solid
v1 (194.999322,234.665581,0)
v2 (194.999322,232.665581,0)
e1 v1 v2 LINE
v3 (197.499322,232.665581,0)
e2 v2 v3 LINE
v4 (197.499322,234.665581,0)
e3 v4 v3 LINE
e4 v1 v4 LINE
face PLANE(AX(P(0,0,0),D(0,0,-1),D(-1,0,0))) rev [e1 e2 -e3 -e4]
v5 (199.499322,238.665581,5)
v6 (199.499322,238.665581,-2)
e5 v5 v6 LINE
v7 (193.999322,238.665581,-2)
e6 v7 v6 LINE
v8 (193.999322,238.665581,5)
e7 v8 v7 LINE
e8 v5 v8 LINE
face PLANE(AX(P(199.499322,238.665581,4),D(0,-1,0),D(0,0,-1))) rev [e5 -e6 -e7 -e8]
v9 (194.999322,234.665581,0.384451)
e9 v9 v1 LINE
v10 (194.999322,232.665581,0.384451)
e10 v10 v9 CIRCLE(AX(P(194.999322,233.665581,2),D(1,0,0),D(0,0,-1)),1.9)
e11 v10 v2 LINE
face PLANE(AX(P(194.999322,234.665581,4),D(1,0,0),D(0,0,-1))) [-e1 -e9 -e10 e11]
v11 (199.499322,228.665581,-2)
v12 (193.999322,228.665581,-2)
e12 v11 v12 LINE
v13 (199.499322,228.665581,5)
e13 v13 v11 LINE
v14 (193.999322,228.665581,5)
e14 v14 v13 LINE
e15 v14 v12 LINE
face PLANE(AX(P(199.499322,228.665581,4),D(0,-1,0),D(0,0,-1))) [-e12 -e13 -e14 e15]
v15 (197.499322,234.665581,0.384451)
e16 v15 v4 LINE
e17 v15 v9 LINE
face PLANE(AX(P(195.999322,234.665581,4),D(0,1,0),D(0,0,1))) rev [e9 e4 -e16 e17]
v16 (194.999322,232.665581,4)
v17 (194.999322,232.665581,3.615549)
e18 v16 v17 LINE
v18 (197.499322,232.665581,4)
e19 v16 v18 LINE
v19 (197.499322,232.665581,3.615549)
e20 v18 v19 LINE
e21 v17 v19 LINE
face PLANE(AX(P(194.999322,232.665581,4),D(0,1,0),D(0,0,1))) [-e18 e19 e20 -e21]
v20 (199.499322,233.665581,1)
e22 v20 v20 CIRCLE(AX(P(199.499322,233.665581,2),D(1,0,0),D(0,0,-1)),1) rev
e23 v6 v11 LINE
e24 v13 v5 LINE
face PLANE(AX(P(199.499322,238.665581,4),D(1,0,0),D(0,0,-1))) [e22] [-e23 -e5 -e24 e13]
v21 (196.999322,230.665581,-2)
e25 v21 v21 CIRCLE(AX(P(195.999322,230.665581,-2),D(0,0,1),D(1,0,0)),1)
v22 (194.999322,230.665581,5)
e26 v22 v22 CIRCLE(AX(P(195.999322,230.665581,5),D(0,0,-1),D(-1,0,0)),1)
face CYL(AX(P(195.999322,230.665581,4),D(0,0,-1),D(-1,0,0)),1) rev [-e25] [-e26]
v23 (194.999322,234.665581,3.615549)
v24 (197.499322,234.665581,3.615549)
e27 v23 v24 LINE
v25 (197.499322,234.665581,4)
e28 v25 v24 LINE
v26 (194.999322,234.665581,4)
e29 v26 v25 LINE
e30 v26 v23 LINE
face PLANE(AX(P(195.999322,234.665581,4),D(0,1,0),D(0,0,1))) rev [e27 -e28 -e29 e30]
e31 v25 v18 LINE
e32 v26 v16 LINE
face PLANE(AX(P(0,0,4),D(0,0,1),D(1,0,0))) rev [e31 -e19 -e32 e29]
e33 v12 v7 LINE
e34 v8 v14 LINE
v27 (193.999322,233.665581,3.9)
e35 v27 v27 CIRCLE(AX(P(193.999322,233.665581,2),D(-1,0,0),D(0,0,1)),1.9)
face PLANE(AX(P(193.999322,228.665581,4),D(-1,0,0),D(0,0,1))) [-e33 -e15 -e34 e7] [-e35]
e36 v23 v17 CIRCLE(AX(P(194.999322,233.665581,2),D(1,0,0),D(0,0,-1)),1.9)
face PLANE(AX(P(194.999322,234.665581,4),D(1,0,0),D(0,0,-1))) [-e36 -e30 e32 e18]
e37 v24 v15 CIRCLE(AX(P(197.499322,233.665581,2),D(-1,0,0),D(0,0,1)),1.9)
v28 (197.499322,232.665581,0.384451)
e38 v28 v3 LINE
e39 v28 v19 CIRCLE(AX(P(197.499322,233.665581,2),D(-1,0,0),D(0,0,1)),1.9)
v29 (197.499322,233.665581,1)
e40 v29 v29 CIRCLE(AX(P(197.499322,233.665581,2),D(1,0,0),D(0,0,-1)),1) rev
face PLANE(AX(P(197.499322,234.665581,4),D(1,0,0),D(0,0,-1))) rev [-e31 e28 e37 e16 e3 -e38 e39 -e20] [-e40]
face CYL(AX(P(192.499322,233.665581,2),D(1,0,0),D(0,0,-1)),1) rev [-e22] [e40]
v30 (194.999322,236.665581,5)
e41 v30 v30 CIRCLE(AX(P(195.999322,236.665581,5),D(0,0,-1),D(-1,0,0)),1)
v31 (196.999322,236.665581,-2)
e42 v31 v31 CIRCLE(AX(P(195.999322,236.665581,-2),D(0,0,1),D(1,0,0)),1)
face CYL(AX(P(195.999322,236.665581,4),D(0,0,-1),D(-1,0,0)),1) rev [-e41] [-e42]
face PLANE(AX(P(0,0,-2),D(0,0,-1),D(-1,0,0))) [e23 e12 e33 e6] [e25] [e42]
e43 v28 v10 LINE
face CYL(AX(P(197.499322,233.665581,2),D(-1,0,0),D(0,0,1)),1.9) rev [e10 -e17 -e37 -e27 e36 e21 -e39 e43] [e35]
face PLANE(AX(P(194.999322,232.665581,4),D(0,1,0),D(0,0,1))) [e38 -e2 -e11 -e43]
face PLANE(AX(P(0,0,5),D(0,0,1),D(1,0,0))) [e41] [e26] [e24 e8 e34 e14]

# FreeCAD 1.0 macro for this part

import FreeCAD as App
import Part
import Sketcher
Q = App.Units.Quantity

doc = App.newDocument("Part")
body = doc.addObject("PartDesign::Body", "Body")

# Sketch on XY plane
sketch1 = body.newObject("Sketcher::SketchObject", "Sketch")
sketch1.AttachmentSupport = (doc.getObject("XY_Plane"), [""])
sketch1.MapMode = "FlatFace"
sketch1.addGeometry(Part.LineSegment(App.Vector(199.5, 228.7, 0), App.Vector(199.5, 238.7, 0)), False)
sketch1.addGeometry(Part.LineSegment(App.Vector(199.5, 238.7, 0), App.Vector(194, 238.7, 0)), False)
sketch1.addGeometry(Part.LineSegment(App.Vector(194, 238.7, 0), App.Vector(194, 228.7, 0)), False)
sketch1.addGeometry(Part.LineSegment(App.Vector(194, 228.7, 0), App.Vector(199.5, 228.7, 0)), False)
sketch1.addGeometry(Part.Circle(App.Vector(196, 230.7, 0), App.Vector(0, 0, 1), 1), False)
sketch1.addGeometry(Part.LineSegment(App.Vector(197.5, 234.7, 0), App.Vector(197.5, 232.7, 0)), False)
sketch1.addGeometry(Part.LineSegment(App.Vector(197.5, 232.7, 0), App.Vector(195, 232.7, 0)), False)
sketch1.addGeometry(Part.LineSegment(App.Vector(195, 232.7, 0), App.Vector(195, 234.7, 0)), False)
sketch1.addGeometry(Part.LineSegment(App.Vector(195, 234.7, 0), App.Vector(197.5, 234.7, 0)), False)
sketch1.addGeometry(Part.Circle(App.Vector(196, 236.7, 0), App.Vector(0, 0, 1), 1), False)
sketch1.addConstraint(Sketcher.Constraint("Coincident", 0, 2, 1, 1))
sketch1.addConstraint(Sketcher.Constraint("Coincident", 1, 2, 2, 1))
sketch1.addConstraint(Sketcher.Constraint("Coincident", 2, 2, 3, 1))
sketch1.addConstraint(Sketcher.Constraint("Coincident", 3, 2, 0, 1))
sketch1.addConstraint(Sketcher.Constraint("Coincident", 5, 2, 6, 1))
sketch1.addConstraint(Sketcher.Constraint("Coincident", 6, 2, 7, 1))
sketch1.addConstraint(Sketcher.Constraint("Coincident", 7, 2, 8, 1))
sketch1.addConstraint(Sketcher.Constraint("Coincident", 8, 2, 5, 1))
sketch1.addConstraint(Sketcher.Constraint("Vertical", 0))
sketch1.addConstraint(Sketcher.Constraint("Horizontal", 1))
sketch1.addConstraint(Sketcher.Constraint("Vertical", 2))
sketch1.addConstraint(Sketcher.Constraint("Horizontal", 3))
sketch1.addConstraint(Sketcher.Constraint("Vertical", 5))
sketch1.addConstraint(Sketcher.Constraint("Horizontal", 6))
sketch1.addConstraint(Sketcher.Constraint("Vertical", 7))
sketch1.addConstraint(Sketcher.Constraint("Horizontal", 8))
sketch1.addConstraint(Sketcher.Constraint("Equal", 4, 9))
sketch1.addConstraint(Sketcher.Constraint("Vertical", 4, 3, 9, 3))
sketch1.addConstraint(Sketcher.Constraint("Diameter", 4, Q("2 mm")))
sketch1.addConstraint(Sketcher.Constraint("DistanceY", 0, 1, 0, 2, Q("10 mm")))
sketch1.addConstraint(Sketcher.Constraint("DistanceY", 5, 2, 5, 1, Q("2 mm")))
sketch1.addConstraint(Sketcher.Constraint("DistanceX", 1, 2, 1, 1, Q("5.5 mm")))
sketch1.addConstraint(Sketcher.Constraint("DistanceX", 6, 2, 6, 1, Q("2.5 mm")))
sketch1.addConstraint(Sketcher.Constraint("DistanceY", 4, 3, 9, 3, Q("6 mm")))
sketch1.addConstraint(Sketcher.Constraint("DistanceY", 9, 3, 0, 2, Q("2 mm")))
sketch1.addConstraint(Sketcher.Constraint("DistanceX", 1, 2, 9, 3, Q("2 mm")))
sketch1.addConstraint(Sketcher.Constraint("DistanceY", 4, 3, 5, 2, Q("2 mm")))
sketch1.addConstraint(Sketcher.Constraint("DistanceX", 5, 2, 3, 2, Q("2 mm")))
sketch1.addConstraint(Sketcher.Constraint("DistanceY", -1, 1, 4, 3, Q("230.665581 mm")))
sketch1.addConstraint(Sketcher.Constraint("DistanceX", -1, 1, 4, 3, Q("195.999322 mm")))
pad1 = body.newObject("PartDesign::Pad", "Pad")
pad1.Profile = sketch1
pad1.Length = 4

# Sketch on YZ plane
sketch2 = body.newObject("Sketcher::SketchObject", "Sketch001")
sketch2.AttachmentSupport = (doc.getObject("YZ_Plane"), [""])
sketch2.MapMode = "FlatFace"
sketch2.AttachmentOffset = App.Placement(App.Vector(0, 0, 197.499322), App.Rotation())
sketch2.addGeometry(Part.Circle(App.Vector(233.7, 2, 0), App.Vector(0, 0, 1), 1), False)
sketch2.addConstraint(Sketcher.Constraint("Diameter", 0, Q("2 mm")))
sketch2.addConstraint(Sketcher.Constraint("DistanceY", -1, 1, 0, 3, Q("2 mm")))
sketch2.addConstraint(Sketcher.Constraint("DistanceX", -1, 1, 0, 3, Q("233.665581 mm")))
pocket1 = body.newObject("PartDesign::Pocket", "Pocket")
pocket1.Profile = sketch2
pocket1.Type = "ThroughAll"
pocket1.Midplane = True

# Sketch on YZ plane
sketch3 = body.newObject("Sketcher::SketchObject", "Sketch002")
sketch3.AttachmentSupport = (doc.getObject("YZ_Plane"), [""])
sketch3.MapMode = "FlatFace"
sketch3.AttachmentOffset = App.Placement(App.Vector(0, 0, 193.999322), App.Rotation())
sketch3.addGeometry(Part.Circle(App.Vector(233.7, 2, 0), App.Vector(0, 0, 1), 1.9), False)
sketch3.addConstraint(Sketcher.Constraint("Diameter", 0, Q("3.8 mm")))
sketch3.addConstraint(Sketcher.Constraint("DistanceY", -1, 1, 0, 3, Q("2 mm")))
sketch3.addConstraint(Sketcher.Constraint("DistanceX", -1, 1, 0, 3, Q("233.665581 mm")))
pocket2 = body.newObject("PartDesign::Pocket", "Pocket001")
pocket2.Profile = sketch3
pocket2.Length = 3.5
pocket2.Reversed = True

# Sketch on XY plane
sketch4 = body.newObject("Sketcher::SketchObject", "Sketch003")
sketch4.AttachmentSupport = (doc.getObject("XY_Plane"), [""])
sketch4.MapMode = "FlatFace"
sketch4.addGeometry(Part.LineSegment(App.Vector(199, 239, 0), App.Vector(199, 229, 0)), False)
sketch4.addGeometry(Part.LineSegment(App.Vector(199, 229, 0), App.Vector(194, 229, 0)), False)
sketch4.addGeometry(Part.LineSegment(App.Vector(194, 229, 0), App.Vector(194, 239, 0)), False)
sketch4.addGeometry(Part.LineSegment(App.Vector(194, 239, 0), App.Vector(199, 239, 0)), False)
sketch4.addConstraint(Sketcher.Constraint("Coincident", 0, 2, 1, 1))
sketch4.addConstraint(Sketcher.Constraint("Coincident", 1, 2, 2, 1))
sketch4.addConstraint(Sketcher.Constraint("Coincident", 2, 2, 3, 1))
sketch4.addConstraint(Sketcher.Constraint("Coincident", 3, 2, 0, 1))
sketch4.addConstraint(Sketcher.Constraint("Vertical", 0))
sketch4.addConstraint(Sketcher.Constraint("Horizontal", 1))
sketch4.addConstraint(Sketcher.Constraint("Vertical", 2))
sketch4.addConstraint(Sketcher.Constraint("Horizontal", 3))
sketch4.addConstraint(Sketcher.Constraint("DistanceY", 0, 2, 0, 1, Q("10 mm")))
sketch4.addConstraint(Sketcher.Constraint("DistanceX", 1, 2, 1, 1, Q("5.5 mm")))
sketch4.addConstraint(Sketcher.Constraint("DistanceY", -1, 1, 0, 2, Q("228.665581 mm")))
sketch4.addConstraint(Sketcher.Constraint("DistanceX", -1, 1, 0, 2, Q("199.499322 mm")))
pad2 = body.newObject("PartDesign::Pad", "Pad001")
pad2.Profile = sketch4
pad2.Length = 2
pad2.Reversed = True

# Sketch on XY plane
sketch5 = body.newObject("Sketcher::SketchObject", "Sketch004")
sketch5.AttachmentSupport = (doc.getObject("XY_Plane"), [""])
sketch5.MapMode = "FlatFace"
sketch5.addGeometry(Part.Circle(App.Vector(196, 236.7, 0), App.Vector(0, 0, 1), 1), False)
sketch5.addConstraint(Sketcher.Constraint("Diameter", 0, Q("2 mm")))
sketch5.addConstraint(Sketcher.Constraint("DistanceY", -1, 1, 0, 3, Q("236.665581 mm")))
sketch5.addConstraint(Sketcher.Constraint("DistanceX", -1, 1, 0, 3, Q("195.999322 mm")))
pocket3 = body.newObject("PartDesign::Pocket", "Pocket002")
pocket3.Profile = sketch5
pocket3.Length = 2

# Sketch on XY plane
sketch6 = body.newObject("Sketcher::SketchObject", "Sketch005")
sketch6.AttachmentSupport = (doc.getObject("XY_Plane"), [""])
sketch6.MapMode = "FlatFace"
sketch6.addGeometry(Part.Circle(App.Vector(196, 230.7, 0), App.Vector(0, 0, 1), 1), False)
sketch6.addConstraint(Sketcher.Constraint("Diameter", 0, Q("2 mm")))
sketch6.addConstraint(Sketcher.Constraint("DistanceY", -1, 1, 0, 3, Q("230.665581 mm")))
sketch6.addConstraint(Sketcher.Constraint("DistanceX", -1, 1, 0, 3, Q("195.999322 mm")))
pocket4 = body.newObject("PartDesign::Pocket", "Pocket003")
pocket4.Profile = sketch6
pocket4.Length = 2

# Sketch on XY plane
sketch7 = body.newObject("Sketcher::SketchObject", "Sketch006")
sketch7.AttachmentSupport = (doc.getObject("XY_Plane"), [""])
sketch7.MapMode = "FlatFace"
sketch7.AttachmentOffset = App.Placement(App.Vector(0, 0, 4), App.Rotation())
sketch7.addGeometry(Part.LineSegment(App.Vector(194, 239, 0), App.Vector(194, 229, 0)), False)
sketch7.addGeometry(Part.LineSegment(App.Vector(194, 229, 0), App.Vector(199, 229, 0)), False)
sketch7.addGeometry(Part.LineSegment(App.Vector(199, 229, 0), App.Vector(199, 239, 0)), False)
sketch7.addGeometry(Part.LineSegment(App.Vector(199, 239, 0), App.Vector(194, 239, 0)), False)
sketch7.addConstraint(Sketcher.Constraint("Coincident", 0, 2, 1, 1))
sketch7.addConstraint(Sketcher.Constraint("Coincident", 1, 2, 2, 1))
sketch7.addConstraint(Sketcher.Constraint("Coincident", 2, 2, 3, 1))
sketch7.addConstraint(Sketcher.Constraint("Coincident", 3, 2, 0, 1))
sketch7.addConstraint(Sketcher.Constraint("Vertical", 0))
sketch7.addConstraint(Sketcher.Constraint("Horizontal", 1))
sketch7.addConstraint(Sketcher.Constraint("Vertical", 2))
sketch7.addConstraint(Sketcher.Constraint("Horizontal", 3))
sketch7.addConstraint(Sketcher.Constraint("DistanceY", 0, 2, 0, 1, Q("10 mm")))
sketch7.addConstraint(Sketcher.Constraint("DistanceX", 1, 1, 1, 2, Q("5.5 mm")))
sketch7.addConstraint(Sketcher.Constraint("DistanceY", -1, 1, 0, 2, Q("228.665581 mm")))
sketch7.addConstraint(Sketcher.Constraint("DistanceX", -1, 1, 0, 2, Q("193.999322 mm")))
pad3 = body.newObject("PartDesign::Pad", "Pad002")
pad3.Profile = sketch7
pad3.Length = 1

# Sketch on XY plane
sketch8 = body.newObject("Sketcher::SketchObject", "Sketch007")
sketch8.AttachmentSupport = (doc.getObject("XY_Plane"), [""])
sketch8.MapMode = "FlatFace"
sketch8.AttachmentOffset = App.Placement(App.Vector(0, 0, 4), App.Rotation())
sketch8.addGeometry(Part.Circle(App.Vector(196, 236.7, 0), App.Vector(0, 0, 1), 1), False)
sketch8.addGeometry(Part.Circle(App.Vector(196, 230.7, 0), App.Vector(0, 0, 1), 1), False)
sketch8.addConstraint(Sketcher.Constraint("Equal", 0, 1))
sketch8.addConstraint(Sketcher.Constraint("Vertical", 0, 3, 1, 3))
sketch8.addConstraint(Sketcher.Constraint("Diameter", 0, Q("2 mm")))
sketch8.addConstraint(Sketcher.Constraint("DistanceY", 1, 3, 0, 3, Q("6 mm")))
sketch8.addConstraint(Sketcher.Constraint("DistanceY", -1, 1, 0, 3, Q("236.665581 mm")))
sketch8.addConstraint(Sketcher.Constraint("DistanceX", -1, 1, 0, 3, Q("195.999322 mm")))
pocket5 = body.newObject("PartDesign::Pocket", "Pocket004")
pocket5.Profile = sketch8
pocket5.Length = 1
pocket5.Reversed = True

doc.recompute()
